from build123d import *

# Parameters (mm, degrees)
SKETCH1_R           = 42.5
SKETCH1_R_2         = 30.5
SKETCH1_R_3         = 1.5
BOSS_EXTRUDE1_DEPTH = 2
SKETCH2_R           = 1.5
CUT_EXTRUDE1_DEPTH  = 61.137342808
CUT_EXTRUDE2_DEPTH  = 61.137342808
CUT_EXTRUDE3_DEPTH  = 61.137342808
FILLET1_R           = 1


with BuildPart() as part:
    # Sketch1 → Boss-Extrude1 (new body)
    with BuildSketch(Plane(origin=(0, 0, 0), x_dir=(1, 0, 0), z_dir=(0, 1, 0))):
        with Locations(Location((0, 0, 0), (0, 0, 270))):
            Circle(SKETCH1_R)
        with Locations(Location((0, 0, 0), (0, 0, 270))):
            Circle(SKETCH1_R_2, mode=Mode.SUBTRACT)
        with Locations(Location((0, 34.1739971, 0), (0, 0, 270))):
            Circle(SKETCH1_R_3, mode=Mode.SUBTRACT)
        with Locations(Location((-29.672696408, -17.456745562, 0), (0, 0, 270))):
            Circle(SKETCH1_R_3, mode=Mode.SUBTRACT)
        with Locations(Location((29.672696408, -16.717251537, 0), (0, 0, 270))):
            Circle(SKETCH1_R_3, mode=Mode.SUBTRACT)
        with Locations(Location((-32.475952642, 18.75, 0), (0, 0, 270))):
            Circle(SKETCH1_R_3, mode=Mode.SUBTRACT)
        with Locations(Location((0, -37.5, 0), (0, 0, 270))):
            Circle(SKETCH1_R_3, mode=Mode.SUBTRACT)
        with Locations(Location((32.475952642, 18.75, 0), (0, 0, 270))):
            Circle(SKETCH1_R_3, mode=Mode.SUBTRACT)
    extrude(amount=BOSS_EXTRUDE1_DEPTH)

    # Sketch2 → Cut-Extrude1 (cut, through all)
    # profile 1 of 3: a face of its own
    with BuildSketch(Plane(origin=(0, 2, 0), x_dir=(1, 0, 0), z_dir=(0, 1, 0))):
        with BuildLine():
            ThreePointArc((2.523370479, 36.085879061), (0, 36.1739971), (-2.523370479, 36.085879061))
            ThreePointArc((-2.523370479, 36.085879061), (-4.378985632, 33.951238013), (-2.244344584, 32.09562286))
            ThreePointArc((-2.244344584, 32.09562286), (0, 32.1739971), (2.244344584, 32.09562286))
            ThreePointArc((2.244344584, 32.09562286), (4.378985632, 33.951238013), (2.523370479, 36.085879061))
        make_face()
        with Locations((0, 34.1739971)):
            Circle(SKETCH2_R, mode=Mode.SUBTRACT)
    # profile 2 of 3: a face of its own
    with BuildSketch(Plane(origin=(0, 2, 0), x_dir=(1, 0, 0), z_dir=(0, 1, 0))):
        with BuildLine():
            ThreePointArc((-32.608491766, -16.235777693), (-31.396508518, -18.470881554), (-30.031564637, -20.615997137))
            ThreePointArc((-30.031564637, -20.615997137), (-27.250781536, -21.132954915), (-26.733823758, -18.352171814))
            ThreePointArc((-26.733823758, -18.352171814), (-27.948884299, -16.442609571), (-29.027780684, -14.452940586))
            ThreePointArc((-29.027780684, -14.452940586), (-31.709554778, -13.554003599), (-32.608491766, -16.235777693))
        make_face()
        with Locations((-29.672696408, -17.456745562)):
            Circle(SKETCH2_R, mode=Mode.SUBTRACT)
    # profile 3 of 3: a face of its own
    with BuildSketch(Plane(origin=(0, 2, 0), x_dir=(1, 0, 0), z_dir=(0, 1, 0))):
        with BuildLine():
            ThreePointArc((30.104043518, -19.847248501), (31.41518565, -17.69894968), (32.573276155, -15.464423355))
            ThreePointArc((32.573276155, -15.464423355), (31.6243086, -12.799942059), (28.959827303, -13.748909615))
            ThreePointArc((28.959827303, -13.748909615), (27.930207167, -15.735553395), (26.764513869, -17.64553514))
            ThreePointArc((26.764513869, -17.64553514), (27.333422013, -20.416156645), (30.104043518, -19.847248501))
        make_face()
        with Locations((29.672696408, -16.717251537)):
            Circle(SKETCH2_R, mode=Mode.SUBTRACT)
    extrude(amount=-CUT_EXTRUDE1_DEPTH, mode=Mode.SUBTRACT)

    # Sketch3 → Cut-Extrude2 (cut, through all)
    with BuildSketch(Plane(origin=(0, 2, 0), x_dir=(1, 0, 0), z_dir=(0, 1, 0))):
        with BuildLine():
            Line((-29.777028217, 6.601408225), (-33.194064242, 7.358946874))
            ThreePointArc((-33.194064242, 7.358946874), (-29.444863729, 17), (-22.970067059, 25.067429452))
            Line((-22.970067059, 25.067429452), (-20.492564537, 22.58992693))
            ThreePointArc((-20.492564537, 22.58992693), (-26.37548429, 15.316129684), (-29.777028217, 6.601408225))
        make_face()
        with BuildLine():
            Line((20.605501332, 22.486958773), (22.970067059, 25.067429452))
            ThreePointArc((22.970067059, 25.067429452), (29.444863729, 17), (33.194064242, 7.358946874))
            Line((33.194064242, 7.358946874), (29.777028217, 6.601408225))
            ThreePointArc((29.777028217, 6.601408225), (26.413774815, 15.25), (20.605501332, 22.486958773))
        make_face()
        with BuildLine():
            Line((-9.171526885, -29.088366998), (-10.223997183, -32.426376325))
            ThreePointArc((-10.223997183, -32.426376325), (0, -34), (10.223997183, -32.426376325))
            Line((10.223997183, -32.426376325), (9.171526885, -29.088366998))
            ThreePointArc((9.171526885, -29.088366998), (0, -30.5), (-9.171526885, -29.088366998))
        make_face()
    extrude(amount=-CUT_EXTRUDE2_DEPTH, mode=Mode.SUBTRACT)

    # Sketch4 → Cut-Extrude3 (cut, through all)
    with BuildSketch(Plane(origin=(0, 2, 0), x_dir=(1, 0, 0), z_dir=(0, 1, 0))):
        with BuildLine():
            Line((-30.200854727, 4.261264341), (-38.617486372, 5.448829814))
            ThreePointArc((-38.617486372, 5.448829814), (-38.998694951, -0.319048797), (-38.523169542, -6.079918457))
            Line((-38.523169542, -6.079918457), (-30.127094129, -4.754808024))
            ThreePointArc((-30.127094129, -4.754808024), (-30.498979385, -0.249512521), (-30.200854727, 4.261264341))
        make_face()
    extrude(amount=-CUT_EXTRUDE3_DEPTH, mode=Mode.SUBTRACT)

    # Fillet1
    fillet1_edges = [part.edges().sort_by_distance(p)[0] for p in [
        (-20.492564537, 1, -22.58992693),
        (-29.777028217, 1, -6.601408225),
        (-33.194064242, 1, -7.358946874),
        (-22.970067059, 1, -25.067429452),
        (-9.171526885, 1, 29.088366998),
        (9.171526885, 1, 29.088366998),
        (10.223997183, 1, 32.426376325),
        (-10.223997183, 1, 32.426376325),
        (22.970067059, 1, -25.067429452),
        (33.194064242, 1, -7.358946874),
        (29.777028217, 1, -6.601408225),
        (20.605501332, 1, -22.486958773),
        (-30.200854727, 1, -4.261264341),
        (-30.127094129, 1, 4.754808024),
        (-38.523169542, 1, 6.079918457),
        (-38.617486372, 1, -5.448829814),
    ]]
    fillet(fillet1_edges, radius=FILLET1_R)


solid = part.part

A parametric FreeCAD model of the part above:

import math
import FreeCAD as App
import Part
import Sketcher
Q = App.Units.Quantity


def edges_at(feature, points):
    """Names of the edges that pass closest to the given points."""
    edges = feature.Shape.Edges
    near = lambda p: min(range(len(edges)), key=lambda i: edges[i].distToShape(Part.Vertex(*p))[0])
    return sorted({f"Edge{near(p) + 1}" for p in points})

doc = App.newDocument("Part")
body = doc.addObject("PartDesign::Body", "Body")

# Sketch on XZ plane
sketch1 = body.newObject("Sketcher::SketchObject", "Sketch")
sketch1.AttachmentSupport = (doc.getObject("XZ_Plane"), [""])
sketch1.MapMode = "FlatFace"
sketch1.addGeometry(Part.Circle(App.Vector(0, 0, 0), App.Vector(0, 0, 1), 42.5), False)
sketch1.addGeometry(Part.Circle(App.Vector(-32.475953, -18.75, 0), App.Vector(0, 0, 1), 1.5), False)
sketch1.addGeometry(Part.Circle(App.Vector(-29.672696, 17.456746, 0), App.Vector(0, 0, 1), 1.5), False)
sketch1.addGeometry(Part.Circle(App.Vector(0, -34.173997, 0), App.Vector(0, 0, 1), 1.5), False)
sketch1.addGeometry(Part.Circle(App.Vector(0, 0, 0), App.Vector(0, 0, 1), 30.5), False)
sketch1.addGeometry(Part.Circle(App.Vector(32.475953, -18.75, 0), App.Vector(0, 0, 1), 1.5), False)
sketch1.addGeometry(Part.Circle(App.Vector(0, 37.5, 0), App.Vector(0, 0, 1), 1.5), False)
sketch1.addGeometry(Part.Circle(App.Vector(29.672696, 16.717252, 0), App.Vector(0, 0, 1), 1.5), False)
sketch1.addConstraint(Sketcher.Constraint("Coincident", 0, 3, -1, 1))
sketch1.addConstraint(Sketcher.Constraint("Coincident", 4, 3, -1, 1))
sketch1.addConstraint(Sketcher.Constraint("Equal", 1, 2))
sketch1.addConstraint(Sketcher.Constraint("Equal", 2, 3))
sketch1.addConstraint(Sketcher.Constraint("Equal", 3, 5))
sketch1.addConstraint(Sketcher.Constraint("Equal", 5, 6))
sketch1.addConstraint(Sketcher.Constraint("Equal", 6, 7))
sketch1.addConstraint(Sketcher.Constraint("Symmetric", 1, 3, 5, 3, -2))
sketch1.addConstraint(Sketcher.Constraint("PointOnObject", 3, 3, -2))
sketch1.addConstraint(Sketcher.Constraint("PointOnObject", 6, 3, -2))
sketch1.addConstraint(Sketcher.Constraint("Diameter", 0, Q("85 mm")))
sketch1.addConstraint(Sketcher.Constraint("Diameter", 1, Q("3 mm")))
sketch1.addConstraint(Sketcher.Constraint("Diameter", 4, Q("61 mm")))
sketch1.addConstraint(Sketcher.Constraint("DistanceY", -1, 1, 6, 3, Q("37.5 mm")))
sketch1.addConstraint(Sketcher.Constraint("DistanceY", 1, 3, -1, 1, Q("18.75 mm")))
sketch1.addConstraint(Sketcher.Constraint("DistanceY", -1, 1, 7, 3, Q("16.717252 mm")))
sketch1.addConstraint(Sketcher.Constraint("DistanceX", 2, 3, 5, 3, Q("62.148649 mm")))
sketch1.addConstraint(Sketcher.Constraint("DistanceY", 3, 3, 7, 3, Q("50.891249 mm")))
sketch1.addConstraint(Sketcher.Constraint("DistanceX", 1, 3, -1, 1, Q("32.475953 mm")))
sketch1.addConstraint(Sketcher.Constraint("DistanceY", -1, 1, 2, 3, Q("17.456746 mm")))
sketch1.addConstraint(Sketcher.Constraint("DistanceX", -1, 1, 7, 3, Q("29.672696 mm")))
pad1 = body.newObject("PartDesign::Pad", "Pad")
pad1.Profile = sketch1
pad1.Length = 2
pad1.Reversed = True

# Sketch on XZ plane
sketch2 = body.newObject("Sketcher::SketchObject", "Sketch001")
sketch2.AttachmentSupport = (doc.getObject("XZ_Plane"), [""])
sketch2.MapMode = "FlatFace"
sketch2.AttachmentOffset = App.Placement(App.Vector(0, 0, -2), App.Rotation())
sketch2.addGeometry(Part.ArcOfCircle(Part.Circle(App.Vector(0, 0, 0), App.Vector(0, 0, 1), 36.173997), math.radians(-94), math.radians(-86)), False)
sketch2.addGeometry(Part.ArcOfCircle(Part.Circle(App.Vector(-2.383858, -34.090751, 0), App.Vector(0, 0, 1), 2), math.radians(86), math.radians(266)), False)
sketch2.addGeometry(Part.ArcOfCircle(Part.Circle(App.Vector(0, 0, 0), App.Vector(0, 0, 1), 32.173997), math.radians(-94), math.radians(-86)), False)
sketch2.addGeometry(Part.ArcOfCircle(Part.Circle(App.Vector(2.383858, -34.090751, 0), App.Vector(0, 0, 1), 2), math.radians(-86), math.radians(94)), False)
sketch2.addGeometry(Part.Circle(App.Vector(0, -34.173997, 0), App.Vector(0, 0, 1), 1.5), False)
sketch2.addGeometry(Part.ArcOfCircle(Part.Circle(App.Vector(0, 0, 0), App.Vector(0, 0, 1), 36.426834), math.radians(145.531273), math.radians(153.531273)), False)
sketch2.addGeometry(Part.ArcOfCircle(Part.Circle(App.Vector(-28.382694, 19.484084, 0), App.Vector(0, 0, 1), 2), math.radians(-34.468727), math.radians(145.531273)), False)
sketch2.addGeometry(Part.ArcOfCircle(Part.Circle(App.Vector(0, 0, 0), App.Vector(0, 0, 1), 32.426833), math.radians(145.531273), math.radians(153.531273)), False)
sketch2.addGeometry(Part.ArcOfCircle(Part.Circle(App.Vector(-30.818136, 15.344359, 0), App.Vector(0, 0, 1), 2), math.radians(153.531273), math.radians(333.531273)), False)
sketch2.addGeometry(Part.Circle(App.Vector(-29.672696, 17.456746, 0), App.Vector(0, 0, 1), 1.5), False)
sketch2.addGeometry(Part.ArcOfCircle(Part.Circle(App.Vector(0, 0, 0), App.Vector(0, 0, 1), 36.057824), math.radians(25.396404), math.radians(33.396404)), False)
sketch2.addGeometry(Part.ArcOfCircle(Part.Circle(App.Vector(30.766552, 14.606666, 0), App.Vector(0, 0, 1), 2), math.radians(-154.603596), math.radians(25.396404)), False)
sketch2.addGeometry(Part.ArcOfCircle(Part.Circle(App.Vector(0, 0, 0), App.Vector(0, 0, 1), 32.057824), math.radians(25.396404), math.radians(33.396404)), False)
sketch2.addGeometry(Part.ArcOfCircle(Part.Circle(App.Vector(28.434279, 18.746392, 0), App.Vector(0, 0, 1), 2), math.radians(33.396404), math.radians(213.396404)), False)
sketch2.addGeometry(Part.Circle(App.Vector(29.672696, 16.717252, 0), App.Vector(0, 0, 1), 1.5), False)
sketch2.addConstraint(Sketcher.Constraint("Tangent", 0, 1, 1, 2))
sketch2.addConstraint(Sketcher.Constraint("Tangent", 1, 1, 2, 1))
sketch2.addConstraint(Sketcher.Constraint("Tangent", 2, 2, 3, 2))
sketch2.addConstraint(Sketcher.Constraint("Tangent", 3, 1, 0, 2))
sketch2.addConstraint(Sketcher.Constraint("Tangent", 5, 1, 6, 2))
sketch2.addConstraint(Sketcher.Constraint("Tangent", 6, 1, 7, 1))
sketch2.addConstraint(Sketcher.Constraint("Tangent", 7, 2, 8, 2))
sketch2.addConstraint(Sketcher.Constraint("Tangent", 8, 1, 5, 2))
sketch2.addConstraint(Sketcher.Constraint("Tangent", 10, 1, 11, 2))
sketch2.addConstraint(Sketcher.Constraint("Tangent", 11, 1, 12, 1))
sketch2.addConstraint(Sketcher.Constraint("Tangent", 12, 2, 13, 2))
sketch2.addConstraint(Sketcher.Constraint("Tangent", 13, 1, 10, 2))
sketch2.addConstraint(Sketcher.Constraint("Coincident", 0, 3, -1, 1))
sketch2.addConstraint(Sketcher.Constraint("Coincident", 2, 3, -1, 1))
sketch2.addConstraint(Sketcher.Constraint("Coincident", 5, 3, -1, 1))
sketch2.addConstraint(Sketcher.Constraint("Coincident", 7, 3, -1, 1))
sketch2.addConstraint(Sketcher.Constraint("Coincident", 10, 3, -1, 1))
sketch2.addConstraint(Sketcher.Constraint("Coincident", 12, 3, -1, 1))
sketch2.addConstraint(Sketcher.Constraint("Equal", 3, 6))
sketch2.addConstraint(Sketcher.Constraint("Equal", 4, 9))
sketch2.addConstraint(Sketcher.Constraint("Equal", 8, 11))
sketch2.addConstraint(Sketcher.Constraint("Equal", 9, 14))
sketch2.addConstraint(Sketcher.Constraint("PointOnObject", 4, 3, -2))
sketch2.addConstraint(Sketcher.Constraint("Horizontal", 1, 3, 3, 3))
sketch2.addConstraint(Sketcher.Constraint("Diameter", 4, Q("3 mm")))
sketch2.addConstraint(Sketcher.Constraint("Radius", 1, Q("2 mm")))
sketch2.addConstraint(Sketcher.Constraint("Radius", 0, Q("36.173997 mm")))
sketch2.addConstraint(Sketcher.Constraint("Radius", 5, Q("36.426834 mm")))
sketch2.addConstraint(Sketcher.Constraint("Radius", 10, Q("36.057824 mm")))
sketch2.addConstraint(Sketcher.Constraint("DistanceY", 1, 3, -1, 1, Q("34.090751 mm")))
sketch2.addConstraint(Sketcher.Constraint("DistanceY", -1, 1, 8, 3, Q("15.344359 mm")))
sketch2.addConstraint(Sketcher.Constraint("DistanceX", -1, 1, 11, 3, Q("30.766552 mm")))
sketch2.addConstraint(Sketcher.Constraint("DistanceX", -1, 1, 13, 3, Q("28.434279 mm")))
sketch2.addConstraint(Sketcher.Constraint("DistanceY", -1, 1, 14, 3, Q("16.717252 mm")))
sketch2.addConstraint(Sketcher.Constraint("DistanceY", -1, 1, 6, 1, Q("18.352172 mm")))
sketch2.addConstraint(Sketcher.Constraint("DistanceY", 4, 3, 6, 3, Q("53.658082 mm")))
sketch2.addConstraint(Sketcher.Constraint("DistanceX", 8, 3, 9, 3, Q("1.14544 mm")))
sketch2.addConstraint(Sketcher.Constraint("DistanceY", 9, 3, 6, 3, Q("2.027339 mm")))
sketch2.addConstraint(Sketcher.Constraint("DistanceX", 14, 3, 10, 1, Q("2.90058 mm")))
pocket1 = body.newObject("PartDesign::Pocket", "Pocket")
pocket1.Profile = sketch2
pocket1.Length = 61.137343
pocket1.Reversed = True

# Sketch on XZ plane
sketch3 = body.newObject("Sketcher::SketchObject", "Sketch002")
sketch3.AttachmentSupport = (doc.getObject("XZ_Plane"), [""])
sketch3.MapMode = "FlatFace"
sketch3.AttachmentOffset = App.Placement(App.Vector(0, 0, -2), App.Rotation())
sketch3.addGeometry(Part.LineSegment(App.Vector(-33.194064, -7.358947, 0), App.Vector(-29.777028, -6.601408, 0)), False)
sketch3.addGeometry(Part.ArcOfCircle(Part.Circle(App.Vector(0, 0, 0), App.Vector(0, 0, 1), 30.5), math.radians(-167.5), math.radians(-132.2129)), False)
sketch3.addGeometry(Part.LineSegment(App.Vector(-20.492565, -22.589927, 0), App.Vector(-22.970067, -25.067429, 0)), False)
sketch3.addGeometry(Part.ArcOfCircle(Part.Circle(App.Vector(0, 0, 0), App.Vector(0, 0, 1), 34), math.radians(-167.5), math.radians(-132.5)), False)
sketch3.addGeometry(Part.LineSegment(App.Vector(22.970067, -25.067429, 0), App.Vector(20.605501, -22.486959, 0)), False)
sketch3.addGeometry(Part.ArcOfCircle(Part.Circle(App.Vector(0, 0, 0), App.Vector(0, 0, 1), 30.5), math.radians(-47.5), math.radians(-12.5)), False)
sketch3.addGeometry(Part.LineSegment(App.Vector(29.777028, -6.601408, 0), App.Vector(33.194064, -7.358947, 0)), False)
sketch3.addGeometry(Part.ArcOfCircle(Part.Circle(App.Vector(0, 0, 0), App.Vector(0, 0, 1), 34), math.radians(-47.5), math.radians(-12.5)), False)
sketch3.addGeometry(Part.LineSegment(App.Vector(-9.171527, 29.088367, 0), App.Vector(-10.223997, 32.426376, 0)), False)
sketch3.addGeometry(Part.ArcOfCircle(Part.Circle(App.Vector(0, 0, 0), App.Vector(0, 0, 1), 34), math.radians(72.5), math.radians(107.5)), False)
sketch3.addGeometry(Part.LineSegment(App.Vector(10.223997, 32.426376, 0), App.Vector(9.171527, 29.088367, 0)), False)
sketch3.addGeometry(Part.ArcOfCircle(Part.Circle(App.Vector(0, 0, 0), App.Vector(0, 0, 1), 30.5), math.radians(72.5), math.radians(107.5)), False)
sketch3.addConstraint(Sketcher.Constraint("Coincident", 0, 2, 1, 1))
sketch3.addConstraint(Sketcher.Constraint("Coincident", 1, 2, 2, 1))
sketch3.addConstraint(Sketcher.Constraint("Coincident", 2, 2, 3, 2))
sketch3.addConstraint(Sketcher.Constraint("Coincident", 3, 1, 0, 1))
sketch3.addConstraint(Sketcher.Constraint("Coincident", 4, 2, 5, 1))
sketch3.addConstraint(Sketcher.Constraint("Coincident", 5, 2, 6, 1))
sketch3.addConstraint(Sketcher.Constraint("Coincident", 6, 2, 7, 2))
sketch3.addConstraint(Sketcher.Constraint("Coincident", 7, 1, 4, 1))
sketch3.addConstraint(Sketcher.Constraint("Coincident", 8, 2, 9, 2))
sketch3.addConstraint(Sketcher.Constraint("Coincident", 9, 1, 10, 1))
sketch3.addConstraint(Sketcher.Constraint("Coincident", 10, 2, 11, 1))
sketch3.addConstraint(Sketcher.Constraint("Coincident", 11, 2, 8, 1))
sketch3.addConstraint(Sketcher.Constraint("Coincident", 1, 3, -1, 1))
sketch3.addConstraint(Sketcher.Constraint("Coincident", 3, 3, -1, 1))
sketch3.addConstraint(Sketcher.Constraint("Coincident", 5, 3, -1, 1))
sketch3.addConstraint(Sketcher.Constraint("Coincident", 7, 3, -1, 1))
sketch3.addConstraint(Sketcher.Constraint("Coincident", 9, 3, -1, 1))
sketch3.addConstraint(Sketcher.Constraint("Coincident", 11, 3, -1, 1))
sketch3.addConstraint(Sketcher.Constraint("Equal", 1, 5))
sketch3.addConstraint(Sketcher.Constraint("Equal", 3, 7))
sketch3.addConstraint(Sketcher.Constraint("Equal", 7, 9))
sketch3.addConstraint(Sketcher.Constraint("Equal", 5, 11))
sketch3.addConstraint(Sketcher.Constraint("Horizontal", 0, 2, 5, 2))
sketch3.addConstraint(Sketcher.Constraint("Horizontal", 3, 1, 6, 2))
sketch3.addConstraint(Sketcher.Constraint("Horizontal", 2, 2, 7, 1))
sketch3.addConstraint(Sketcher.Constraint("Horizontal", 8, 2, 9, 1))
sketch3.addConstraint(Sketcher.Constraint("Horizontal", 10, 2, 11, 2))
sketch3.addConstraint(Sketcher.Constraint("Radius", 3, Q("34 mm")))
sketch3.addConstraint(Sketcher.Constraint("Radius", 1, Q("30.5 mm")))
sketch3.addConstraint(Sketcher.Constraint("Angle", 2, Q("-135 deg")))
sketch3.addConstraint(Sketcher.Constraint("Angle", 0, Q("12.5 deg")))
sketch3.addConstraint(Sketcher.Constraint("Angle", 4, Q("132.5 deg")))
sketch3.addConstraint(Sketcher.Constraint("Angle", 8, Q("107.5 deg")))
sketch3.addConstraint(Sketcher.Constraint("DistanceX", -1, 1, 4, 2, Q("20.605501 mm")))
sketch3.addConstraint(Sketcher.Constraint("DistanceX", 3, 1, 1, 2, Q("12.7015 mm")))
sketch3.addConstraint(Sketcher.Constraint("DistanceX", 8, 2, -1, 1, Q("10.223997 mm")))
pocket2 = body.newObject("PartDesign::Pocket", "Pocket001")
pocket2.Profile = sketch3
pocket2.Type = "ThroughAll"
pocket2.Reversed = True

# Sketch on XZ plane
sketch4 = body.newObject("Sketcher::SketchObject", "Sketch003")
sketch4.AttachmentSupport = (doc.getObject("XZ_Plane"), [""])
sketch4.MapMode = "FlatFace"
sketch4.AttachmentOffset = App.Placement(App.Vector(0, 0, -2), App.Rotation())
sketch4.addGeometry(Part.LineSegment(App.Vector(-30.200855, -4.261264, 0), App.Vector(-38.617486, -5.44883, 0)), False)
sketch4.addGeometry(Part.ArcOfCircle(Part.Circle(App.Vector(0, 0, 0), App.Vector(0, 0, 1), 39), math.radians(171.031273), math.radians(188.031273)), False)
sketch4.addGeometry(Part.LineSegment(App.Vector(-38.52317, 6.079918, 0), App.Vector(-30.127094, 4.754808, 0)), False)
sketch4.addGeometry(Part.ArcOfCircle(Part.Circle(App.Vector(0, 0, 0), App.Vector(0, 0, 1), 30.5), math.radians(171.031273), math.radians(188.031273)), False)
sketch4.addConstraint(Sketcher.Constraint("Coincident", 0, 2, 1, 2))
sketch4.addConstraint(Sketcher.Constraint("Coincident", 1, 1, 2, 1))
sketch4.addConstraint(Sketcher.Constraint("Coincident", 2, 2, 3, 1))
sketch4.addConstraint(Sketcher.Constraint("Coincident", 3, 2, 0, 1))
sketch4.addConstraint(Sketcher.Constraint("Coincident", 1, 3, -1, 1))
sketch4.addConstraint(Sketcher.Constraint("Coincident", 3, 3, -1, 1))
sketch4.addConstraint(Sketcher.Constraint("Radius", 1, Q("39 mm")))
sketch4.addConstraint(Sketcher.Constraint("Radius", 3, Q("30.5 mm")))
sketch4.addConstraint(Sketcher.Constraint("DistanceY", 0, 2, -1, 1, Q("5.44883 mm")))
sketch4.addConstraint(Sketcher.Constraint("DistanceX", 1, 1, -1, 1, Q("38.52317 mm")))
sketch4.addConstraint(Sketcher.Constraint("DistanceY", -1, 1, 2, 2, Q("4.754808 mm")))
sketch4.addConstraint(Sketcher.Constraint("DistanceX", 0, 2, 3, 2, Q("8.416632 mm")))
pocket3 = body.newObject("PartDesign::Pocket", "Pocket002")
pocket3.Profile = sketch4
pocket3.Type = "ThroughAll"
pocket3.Reversed = True
doc.recompute()

fillet = body.newObject("PartDesign::Fillet", "Fillet")
fillet.Base = (pocket3, edges_at(pocket3, [
    (-20.493, 1, -22.59),
    (-29.777, 1, -6.601),
    (-33.194, 1, -7.359),
    (-22.97, 1, -25.067),
    (-9.172, 1, 29.088),
    (9.172, 1, 29.088),
    (10.224, 1, 32.426),
    (-10.224, 1, 32.426),
    (22.97, 1, -25.067),
    (33.194, 1, -7.359),
    (29.777, 1, -6.601),
    (20.606, 1, -22.487),
    (-30.201, 1, -4.261),
    (-30.127, 1, 4.755),
    (-38.523, 1, 6.08),
    (-38.617, 1, -5.449),
]))
fillet.Radius = 1

doc.recompute()
